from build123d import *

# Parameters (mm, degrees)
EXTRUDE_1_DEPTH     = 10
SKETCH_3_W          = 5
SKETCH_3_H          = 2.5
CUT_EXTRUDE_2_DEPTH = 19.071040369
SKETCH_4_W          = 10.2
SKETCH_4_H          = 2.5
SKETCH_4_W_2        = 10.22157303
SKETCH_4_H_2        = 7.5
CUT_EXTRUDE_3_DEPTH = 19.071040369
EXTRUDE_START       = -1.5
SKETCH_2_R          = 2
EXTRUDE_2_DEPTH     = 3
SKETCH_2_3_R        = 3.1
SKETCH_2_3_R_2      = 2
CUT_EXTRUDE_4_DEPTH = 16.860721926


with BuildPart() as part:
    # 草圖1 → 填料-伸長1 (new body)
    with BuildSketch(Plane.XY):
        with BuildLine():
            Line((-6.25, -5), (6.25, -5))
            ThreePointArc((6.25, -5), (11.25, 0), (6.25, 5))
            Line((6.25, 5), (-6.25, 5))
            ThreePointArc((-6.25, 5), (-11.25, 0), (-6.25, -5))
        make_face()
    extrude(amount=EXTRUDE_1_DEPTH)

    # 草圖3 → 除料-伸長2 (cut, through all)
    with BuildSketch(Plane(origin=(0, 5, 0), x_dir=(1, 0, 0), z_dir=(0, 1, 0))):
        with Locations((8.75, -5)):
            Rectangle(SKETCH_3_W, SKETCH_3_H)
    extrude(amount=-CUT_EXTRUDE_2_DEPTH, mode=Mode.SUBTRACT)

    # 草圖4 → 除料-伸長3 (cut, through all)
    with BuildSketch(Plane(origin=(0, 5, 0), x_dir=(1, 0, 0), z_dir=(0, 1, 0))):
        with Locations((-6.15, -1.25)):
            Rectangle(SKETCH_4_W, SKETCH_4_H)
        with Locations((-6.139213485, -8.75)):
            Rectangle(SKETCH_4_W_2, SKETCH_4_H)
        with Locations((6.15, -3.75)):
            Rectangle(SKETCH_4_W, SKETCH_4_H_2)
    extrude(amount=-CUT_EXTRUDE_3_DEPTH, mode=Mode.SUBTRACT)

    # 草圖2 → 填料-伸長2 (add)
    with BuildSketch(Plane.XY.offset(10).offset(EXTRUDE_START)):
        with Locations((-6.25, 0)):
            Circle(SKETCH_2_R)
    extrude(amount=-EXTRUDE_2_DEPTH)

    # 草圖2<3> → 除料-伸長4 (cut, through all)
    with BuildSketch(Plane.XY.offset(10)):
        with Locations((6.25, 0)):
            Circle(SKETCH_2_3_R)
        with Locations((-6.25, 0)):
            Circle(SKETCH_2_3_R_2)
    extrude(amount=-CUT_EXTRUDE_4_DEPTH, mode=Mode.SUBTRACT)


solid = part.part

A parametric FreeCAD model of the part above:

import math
import FreeCAD as App
import Part
import Sketcher
Q = App.Units.Quantity

doc = App.newDocument("Part")
params = doc.addObject("Spreadsheet::Sheet", "Params")
for row, (alias, value) in enumerate([
    ("sketch1_radius", "5 mm"),
    ("sketch1_width", "12.5 mm"),
    ("pad1_length", "10 mm"),
    ("sketch2_width", "5 mm"),
    ("sketch2_height", "2.5 mm"),
    ("sketch3_width", "10.2 mm"),
    ("sketch3_height", "2.5 mm"),
    ("sketch3_height2", "7.5 mm"),
    ("sketch4_diameter", "4 mm"),
    ("pad2_length", "3 mm"),
    ("sketch5_diameter", "4 mm"),
    ("sketch5_diameter2", "6.2 mm"),
], start=1):
    params.set(f"A{row}", alias)
    params.set(f"B{row}", "=" + value)
    params.setAlias(f"B{row}", alias)

body = doc.addObject("PartDesign::Body", "Body")

sketch1 = body.newObject("Sketcher::SketchObject", "Sketch")
sketch1.AttachmentSupport = (doc.getObject("XY_Plane"), [""])
sketch1.MapMode = "FlatFace"
sketch1.addGeometry([
    Part.LineSegment(App.Vector(-6.25, -5, 0), App.Vector(6.25, -5, 0)),
    Part.ArcOfCircle(Part.Circle(App.Vector(6.25, 0, 0), App.Vector(0, 0, 1), 5), math.radians(-90), math.radians(90)),
    Part.LineSegment(App.Vector(6.25, 5, 0), App.Vector(-6.25, 5, 0)),
    Part.ArcOfCircle(Part.Circle(App.Vector(-6.25, 0, 0), App.Vector(0, 0, 1), 5), math.radians(90), math.radians(270)),
], False)
sketch1.addConstraint([
    Sketcher.Constraint("Tangent", 0, 2, 1, 1),
    Sketcher.Constraint("Tangent", 1, 2, 2, 1),
    Sketcher.Constraint("Tangent", 2, 2, 3, 1),
    Sketcher.Constraint("Tangent", 3, 2, 0, 1),
    Sketcher.Constraint("Horizontal", 0),
    Sketcher.Constraint("Horizontal", 2),
    Sketcher.Constraint("Symmetric", 1, 3, 3, 3, -1, 1),
    Sketcher.Constraint("Radius", 1, Q("5 mm")),
    Sketcher.Constraint("DistanceX", 0, 1, 0, 2, Q("12.5 mm")),
])
sketch1.setExpression("Constraints[7]", "Params.sketch1_radius")
sketch1.setExpression("Constraints[8]", "Params.sketch1_width")
pad1 = body.newObject("PartDesign::Pad", "Pad")
pad1.Profile = sketch1
pad1.setExpression("Length", "Params.pad1_length")

sketch2 = body.newObject("Sketcher::SketchObject", "Sketch001")
sketch2.AttachmentSupport = (doc.getObject("XZ_Plane"), [""])
sketch2.MapMode = "FlatFace"
sketch2.AttachmentOffset = App.Placement(App.Vector(0, 0, -5), App.Rotation())
sketch2.addGeometry([
    Part.LineSegment(App.Vector(6.25, 3.75, 0), App.Vector(6.25, 6.25, 0)),
    Part.LineSegment(App.Vector(6.25, 6.25, 0), App.Vector(11.25, 6.25, 0)),
    Part.LineSegment(App.Vector(11.25, 6.25, 0), App.Vector(11.25, 3.75, 0)),
    Part.LineSegment(App.Vector(11.25, 3.75, 0), App.Vector(6.25, 3.75, 0)),
], False)
sketch2.addConstraint([
    Sketcher.Constraint("Coincident", 0, 2, 1, 1),
    Sketcher.Constraint("Coincident", 1, 2, 2, 1),
    Sketcher.Constraint("Coincident", 2, 2, 3, 1),
    Sketcher.Constraint("Coincident", 3, 2, 0, 1),
    Sketcher.Constraint("Vertical", 0),
    Sketcher.Constraint("Horizontal", 1),
    Sketcher.Constraint("Vertical", 2),
    Sketcher.Constraint("Horizontal", 3),
    Sketcher.Constraint("DistanceX", 1, 1, 1, 2, Q("5 mm")),
    Sketcher.Constraint("DistanceY", 0, 1, 0, 2, Q("2.5 mm")),
    Sketcher.Constraint("DistanceX", -1, 1, 0, 2, Q("6.25 mm")),
    Sketcher.Constraint("DistanceY", -1, 1, 0, 2, Q("6.25 mm")),
])
sketch2.setExpression("Constraints[8]", "Params.sketch2_width")
sketch2.setExpression("Constraints[9]", "Params.sketch2_height")
pocket1 = body.newObject("PartDesign::Pocket", "Pocket")
pocket1.Profile = sketch2
pocket1.Type = "ThroughAll"
pocket1.Reversed = True

sketch3 = body.newObject("Sketcher::SketchObject", "Sketch002")
sketch3.AttachmentSupport = (doc.getObject("XZ_Plane"), [""])
sketch3.MapMode = "FlatFace"
sketch3.AttachmentOffset = App.Placement(App.Vector(0, 0, -5), App.Rotation())
sketch3.addGeometry([
    Part.LineSegment(App.Vector(-11.25, 0, 0), App.Vector(-11.25, 2.5, 0)),
    Part.LineSegment(App.Vector(-11.25, 2.5, 0), App.Vector(-1.05, 2.5, 0)),
    Part.LineSegment(App.Vector(-1.05, 2.5, 0), App.Vector(-1.05, 0, 0)),
    Part.LineSegment(App.Vector(-1.05, 0, 0), App.Vector(-11.25, 0, 0)),
    Part.LineSegment(App.Vector(-11.25, 7.5, 0), App.Vector(-11.25, 10, 0)),
    Part.LineSegment(App.Vector(-11.25, 10, 0), App.Vector(-1.028427, 10, 0)),
    Part.LineSegment(App.Vector(-1.028427, 10, 0), App.Vector(-1.028427, 7.5, 0)),
    Part.LineSegment(App.Vector(-1.028427, 7.5, 0), App.Vector(-11.25, 7.5, 0)),
    Part.LineSegment(App.Vector(1.05, 0, 0), App.Vector(1.05, 7.5, 0)),
    Part.LineSegment(App.Vector(1.05, 7.5, 0), App.Vector(11.25, 7.5, 0)),
    Part.LineSegment(App.Vector(11.25, 7.5, 0), App.Vector(11.25, 0, 0)),
    Part.LineSegment(App.Vector(11.25, 0, 0), App.Vector(1.05, 0, 0)),
], False)
sketch3.addConstraint([
    Sketcher.Constraint("Coincident", 0, 2, 1, 1),
    Sketcher.Constraint("Coincident", 1, 2, 2, 1),
    Sketcher.Constraint("Coincident", 2, 2, 3, 1),
    Sketcher.Constraint("Coincident", 3, 2, 0, 1),
    Sketcher.Constraint("Coincident", 4, 2, 5, 1),
    Sketcher.Constraint("Coincident", 5, 2, 6, 1),
    Sketcher.Constraint("Coincident", 6, 2, 7, 1),
    Sketcher.Constraint("Coincident", 7, 2, 4, 1),
    Sketcher.Constraint("Coincident", 8, 2, 9, 1),
    Sketcher.Constraint("Coincident", 9, 2, 10, 1),
    Sketcher.Constraint("Coincident", 10, 2, 11, 1),
    Sketcher.Constraint("Coincident", 11, 2, 8, 1),
    Sketcher.Constraint("Vertical", 0),
    Sketcher.Constraint("Horizontal", 1),
    Sketcher.Constraint("Vertical", 2),
    Sketcher.Constraint("Horizontal", 3),
    Sketcher.Constraint("Vertical", 4),
    Sketcher.Constraint("Horizontal", 5),
    Sketcher.Constraint("Vertical", 6),
    Sketcher.Constraint("Horizontal", 7),
    Sketcher.Constraint("Vertical", 8),
    Sketcher.Constraint("Horizontal", 9),
    Sketcher.Constraint("Vertical", 10),
    Sketcher.Constraint("Horizontal", 11),
    Sketcher.Constraint("Symmetric", 3, 2, 10, 2, -1, 1),
    Sketcher.Constraint("Symmetric", 7, 2, 9, 2, -2),
    Sketcher.Constraint("Symmetric", 2, 2, 11, 2, -2),
    Sketcher.Constraint("Equal", 2, 4),
    Sketcher.Constraint("DistanceX", 1, 1, 1, 2, Q("10.2 mm")),
    Sketcher.Constraint("DistanceY", 0, 1, 0, 2, Q("2.5 mm")),
    Sketcher.Constraint("DistanceY", 8, 1, 8, 2, Q("7.5 mm")),
    Sketcher.Constraint("DistanceX", 1, 2, 8, 2, Q("2.1 mm")),
    Sketcher.Constraint("DistanceX", 5, 1, 5, 2, Q("10.221573 mm")),
])
sketch3.setExpression("Constraints[28]", "Params.sketch3_width")
sketch3.setExpression("Constraints[29]", "Params.sketch3_height")
sketch3.setExpression("Constraints[30]", "Params.sketch3_height2")
pocket2 = body.newObject("PartDesign::Pocket", "Pocket001")
pocket2.Profile = sketch3
pocket2.Type = "ThroughAll"
pocket2.Reversed = True

sketch4 = body.newObject("Sketcher::SketchObject", "Sketch003")
sketch4.AttachmentSupport = (doc.getObject("XY_Plane"), [""])
sketch4.MapMode = "FlatFace"
sketch4.AttachmentOffset = App.Placement(App.Vector(0, 0, 8.5), App.Rotation())
sketch4.addGeometry(Part.Circle(App.Vector(-6.25, 0, 0), App.Vector(0, 0, 1), 2), False)
sketch4.addConstraint([
    Sketcher.Constraint("PointOnObject", 0, 3, -1),
    Sketcher.Constraint("Diameter", 0, Q("4 mm")),
    Sketcher.Constraint("DistanceX", 0, 3, -1, 1, Q("6.25 mm")),
])
sketch4.setExpression("Constraints[1]", "Params.sketch4_diameter")
pad2 = body.newObject("PartDesign::Pad", "Pad001")
pad2.Profile = sketch4
pad2.setExpression("Length", "Params.pad2_length")
pad2.Reversed = True

sketch5 = body.newObject("Sketcher::SketchObject", "Sketch004")
sketch5.AttachmentSupport = (doc.getObject("XY_Plane"), [""])
sketch5.MapMode = "FlatFace"
sketch5.AttachmentOffset = App.Placement(App.Vector(0, 0, 10), App.Rotation())
sketch5.addGeometry([
    Part.Circle(App.Vector(6.25, 0, 0), App.Vector(0, 0, 1), 3.1),
    Part.Circle(App.Vector(-6.25, 0, 0), App.Vector(0, 0, 1), 2),
], False)
sketch5.addConstraint([
    Sketcher.Constraint("Symmetric", 0, 3, 1, 3, -1, 1),
    Sketcher.Constraint("PointOnObject", 0, 3, -1),
    Sketcher.Constraint("Diameter", 1, Q("4 mm")),
    Sketcher.Constraint("Diameter", 0, Q("6.2 mm")),
    Sketcher.Constraint("DistanceX", 1, 3, 0, 3, Q("12.5 mm")),
])
sketch5.setExpression("Constraints[2]", "Params.sketch5_diameter")
sketch5.setExpression("Constraints[3]", "Params.sketch5_diameter2")
pocket3 = body.newObject("PartDesign::Pocket", "Pocket002")
pocket3.Profile = sketch5
pocket3.Type = "ThroughAll"

doc.recompute()
